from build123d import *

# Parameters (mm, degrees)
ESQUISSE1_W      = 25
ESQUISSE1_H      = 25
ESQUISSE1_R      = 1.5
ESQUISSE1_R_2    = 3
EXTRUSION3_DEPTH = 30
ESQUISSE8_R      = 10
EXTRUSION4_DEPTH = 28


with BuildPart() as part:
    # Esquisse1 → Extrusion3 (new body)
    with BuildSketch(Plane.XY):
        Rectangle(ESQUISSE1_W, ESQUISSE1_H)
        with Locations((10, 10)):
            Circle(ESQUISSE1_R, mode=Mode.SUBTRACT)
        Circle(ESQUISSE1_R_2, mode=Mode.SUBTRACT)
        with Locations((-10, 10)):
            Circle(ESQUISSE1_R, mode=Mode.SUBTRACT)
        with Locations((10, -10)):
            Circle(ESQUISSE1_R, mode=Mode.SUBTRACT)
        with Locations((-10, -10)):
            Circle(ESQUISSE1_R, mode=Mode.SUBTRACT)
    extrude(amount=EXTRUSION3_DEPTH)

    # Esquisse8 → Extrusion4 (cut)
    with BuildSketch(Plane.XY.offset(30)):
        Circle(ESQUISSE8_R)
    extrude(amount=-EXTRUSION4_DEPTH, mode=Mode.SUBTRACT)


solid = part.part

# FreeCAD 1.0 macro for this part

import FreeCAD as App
import Part
import Sketcher

V = App.Vector

doc = App.newDocument("Part")
params = doc.addObject("Spreadsheet::Sheet", "Params")
for row, (alias, value) in enumerate([
    ("sketch1_diameter", "3 mm"),
    ("sketch1_diameter2", "6 mm"),
    ("sketch1_width", "25 mm"),
    ("pad1_length", "30 mm"),
    ("sketch2_diameter", "20 mm"),
    ("pocket1_length", "28 mm"),
], start=1):
    params.set(f"A{row}", alias)
    params.set(f"B{row}", "=" + value)
    params.setAlias(f"B{row}", alias)

body = doc.addObject("PartDesign::Body", "Body")

# Sketch on XY plane
sketch1 = body.newObject("Sketcher::SketchObject", "Sketch")
sketch1.AttachmentSupport = (doc.getObject("XY_Plane"), [""])
sketch1.MapMode = "FlatFace"
sketch1.addGeometry([
    Part.LineSegment(V(-12.5, 12.5, 0), V(-12.5, -12.5, 0)),  # 0
    Part.LineSegment(V(-12.5, -12.5, 0), V(12.5, -12.5, 0)),  # 1
    Part.LineSegment(V(12.5, -12.5, 0), V(12.5, 12.5, 0)),  # 2
    Part.LineSegment(V(12.5, 12.5, 0), V(-12.5, 12.5, 0)),  # 3
    Part.Circle(V(-10, -10, 0), V(0, 0, 1), 1.5),  # 4
    Part.Circle(V(10, -10, 0), V(0, 0, 1), 1.5),  # 5
    Part.Circle(V(-10, 10, 0), V(0, 0, 1), 1.5),  # 6
    Part.Circle(V(0, 0, 0), V(0, 0, 1), 3),  # 7
    Part.Circle(V(10, 10, 0), V(0, 0, 1), 1.5),  # 8
], False)
sketch1.addConstraint([
    Sketcher.Constraint("Coincident", 0, 2, 1, 1),
    Sketcher.Constraint("Coincident", 1, 2, 2, 1),
    Sketcher.Constraint("Coincident", 2, 2, 3, 1),
    Sketcher.Constraint("Coincident", 3, 2, 0, 1),
    Sketcher.Constraint("Vertical", 0),
    Sketcher.Constraint("Horizontal", 1),
    Sketcher.Constraint("Vertical", 2),
    Sketcher.Constraint("Horizontal", 3),
    Sketcher.Constraint("Coincident", 7, 3, -1, 1),
    Sketcher.Constraint("Equal", 4, 5),
    Sketcher.Constraint("Equal", 5, 6),
    Sketcher.Constraint("Equal", 6, 8),
    Sketcher.Constraint("Symmetric", 5, 3, 6, 3, -1, 1),
    Sketcher.Constraint("Symmetric", 4, 3, 8, 3, -1, 1),
    Sketcher.Constraint("Symmetric", 0, 2, 2, 2, -1, 1),
    Sketcher.Constraint("Symmetric", 4, 3, 5, 3, -2),
    Sketcher.Constraint("Equal", 3, 0),
    Sketcher.Constraint("Diameter", 4, 3.0),
    Sketcher.Constraint("Diameter", 7, 6.0),
    Sketcher.Constraint("DistanceX", 1, 1, 1, 2, 25.0),
    Sketcher.Constraint("DistanceX", 4, 3, -1, 1, 10.0),
    Sketcher.Constraint("DistanceY", 4, 3, -1, 1, 10.0),
])
sketch1.setExpression("Constraints[17]", "Params.sketch1_diameter")
sketch1.setExpression("Constraints[18]", "Params.sketch1_diameter2")
sketch1.setExpression("Constraints[19]", "Params.sketch1_width")
pad1 = body.newObject("PartDesign::Pad", "Pad")
pad1.Profile = sketch1
pad1.setExpression("Length", "Params.pad1_length")

# Sketch on XY plane
sketch2 = body.newObject("Sketcher::SketchObject", "Sketch001")
sketch2.AttachmentSupport = (doc.getObject("XY_Plane"), [""])
sketch2.MapMode = "FlatFace"
sketch2.AttachmentOffset = App.Placement(V(0, 0, 30), App.Rotation())
sketch2.addGeometry(Part.Circle(V(0, 0, 0), V(0, 0, 1), 10), False)
sketch2.addConstraint([
    Sketcher.Constraint("Coincident", 0, 3, -1, 1),
    Sketcher.Constraint("Diameter", 0, 20.0),
])
sketch2.setExpression("Constraints[1]", "Params.sketch2_diameter")
pocket1 = body.newObject("PartDesign::Pocket", "Pocket")
pocket1.Profile = sketch2
pocket1.setExpression("Length", "Params.pocket1_length")

doc.recompute()
